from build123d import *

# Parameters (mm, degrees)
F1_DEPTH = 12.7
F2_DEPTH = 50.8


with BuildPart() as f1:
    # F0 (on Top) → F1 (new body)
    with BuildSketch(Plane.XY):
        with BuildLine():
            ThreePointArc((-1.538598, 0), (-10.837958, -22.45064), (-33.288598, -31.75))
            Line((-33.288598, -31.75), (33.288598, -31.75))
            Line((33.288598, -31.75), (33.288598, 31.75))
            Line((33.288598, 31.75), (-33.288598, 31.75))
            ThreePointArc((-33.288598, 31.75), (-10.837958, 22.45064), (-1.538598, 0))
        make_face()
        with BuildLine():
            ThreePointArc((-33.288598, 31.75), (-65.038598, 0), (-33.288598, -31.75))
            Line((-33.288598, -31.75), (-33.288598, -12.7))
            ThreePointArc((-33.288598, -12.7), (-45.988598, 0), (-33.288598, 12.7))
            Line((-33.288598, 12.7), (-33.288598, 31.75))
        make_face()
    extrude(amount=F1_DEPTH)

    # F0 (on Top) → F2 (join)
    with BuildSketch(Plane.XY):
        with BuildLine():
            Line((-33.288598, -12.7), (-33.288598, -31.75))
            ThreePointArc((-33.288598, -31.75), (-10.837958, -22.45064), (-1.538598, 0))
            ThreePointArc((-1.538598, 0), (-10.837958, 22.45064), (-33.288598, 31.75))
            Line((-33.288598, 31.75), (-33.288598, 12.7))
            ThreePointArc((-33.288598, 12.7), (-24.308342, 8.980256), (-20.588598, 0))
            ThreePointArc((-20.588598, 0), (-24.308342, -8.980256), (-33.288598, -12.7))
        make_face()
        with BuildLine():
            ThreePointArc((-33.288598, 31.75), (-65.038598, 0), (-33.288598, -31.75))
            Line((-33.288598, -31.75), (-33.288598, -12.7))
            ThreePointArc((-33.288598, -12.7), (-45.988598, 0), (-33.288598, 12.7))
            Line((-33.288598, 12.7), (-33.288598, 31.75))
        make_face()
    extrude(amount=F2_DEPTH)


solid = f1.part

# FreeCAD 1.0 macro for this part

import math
import FreeCAD as App
import Part
import Sketcher
Q = App.Units.Quantity

doc = App.newDocument("Part")
body = doc.addObject("PartDesign::Body", "Body")
body.AllowCompound = True

# Sketch on XY plane
sketch1 = doc.addObject("Sketcher::SketchObject", "Sketch")
body.addObject(sketch1)
sketch1.AttachmentSupport = (doc.XY_Plane, [""])
sketch1.MapMode = "FlatFace"
sketch1.addGeometry([
    Part.ArcOfCircle(Part.Circle(App.Vector(-33, 0, 0), App.Vector(0, 0, 1), 32), math.radians(-90), math.radians(0)),  # 0
    Part.LineSegment(App.Vector(-33, -32, 0), App.Vector(33, -32, 0)),  # 1
    Part.LineSegment(App.Vector(33, -32, 0), App.Vector(33, 32, 0)),  # 2
    Part.LineSegment(App.Vector(33, 32, 0), App.Vector(-33, 32, 0)),  # 3
    Part.ArcOfCircle(Part.Circle(App.Vector(-33, 0, 0), App.Vector(0, 0, 1), 32), math.radians(0), math.radians(90)),  # 4
    Part.ArcOfCircle(Part.Circle(App.Vector(-33, 0, 0), App.Vector(0, 0, 1), 32), math.radians(90), math.radians(270)),  # 5
    Part.LineSegment(App.Vector(-33, -32, 0), App.Vector(-33, -13, 0)),  # 6
    Part.ArcOfCircle(Part.Circle(App.Vector(-33, 0, 0), App.Vector(0, 0, 1), 13), math.radians(90), math.radians(270)),  # 7
    Part.LineSegment(App.Vector(-33, 13, 0), App.Vector(-33, 32, 0)),  # 8
], False)
sketch1.addConstraint([
    Sketcher.Constraint("Tangent", 0, 1, 1, 1),
    Sketcher.Constraint("Coincident", 1, 2, 2, 1),
    Sketcher.Constraint("Coincident", 2, 2, 3, 1),
    Sketcher.Constraint("Tangent", 3, 2, 4, 2),
    Sketcher.Constraint("Tangent", 4, 1, 0, 2),
    Sketcher.Constraint("Coincident", 5, 2, 6, 1),
    Sketcher.Constraint("Coincident", 6, 2, 7, 2),
    Sketcher.Constraint("Coincident", 7, 1, 8, 1),
    Sketcher.Constraint("Coincident", 8, 2, 5, 1),
    Sketcher.Constraint("Horizontal", 1),
    Sketcher.Constraint("Vertical", 2),
    Sketcher.Constraint("Horizontal", 3),
    Sketcher.Constraint("Vertical", 6),
    Sketcher.Constraint("Vertical", 8),
    Sketcher.Constraint("Coincident", 5, 3, 0, 3),
    Sketcher.Constraint("Coincident", 7, 3, 0, 3),
    Sketcher.Constraint("Coincident", 5, 2, 0, 1),
    Sketcher.Constraint("Coincident", 8, 2, 3, 2),
    Sketcher.Constraint("Symmetric", 0, 1, 2, 2, -1, 1),
    Sketcher.Constraint("PointOnObject", 4, 1, -1),
    Sketcher.Constraint("Radius", 7, Q("0.5 in")),
    Sketcher.Constraint("Radius", 0, Q("1.25 in")),
    Sketcher.Constraint("DistanceX", 0, 3, -1, 1, Q("33.288599 mm")),
])
pad1 = doc.addObject("PartDesign::Pad", "Pad")
body.addObject(pad1)
pad1.Profile = sketch1
pad1.Length = Q("0.5 in")

# Sketch on XY plane
sketch2 = doc.addObject("Sketcher::SketchObject", "Sketch001")
body.addObject(sketch2)
sketch2.AttachmentSupport = (doc.XY_Plane, [""])
sketch2.MapMode = "FlatFace"
sketch2.addGeometry([
    Part.ArcOfCircle(Part.Circle(App.Vector(-33, 0, 0), App.Vector(0, 0, 1), 32), math.radians(-90), math.radians(0)),  # 0
    Part.ArcOfCircle(Part.Circle(App.Vector(-33, 0, 0), App.Vector(0, 0, 1), 32), math.radians(0), math.radians(90)),  # 1
    Part.ArcOfCircle(Part.Circle(App.Vector(-33, 0, 0), App.Vector(0, 0, 1), 32), math.radians(90), math.radians(270)),  # 2
    Part.ArcOfCircle(Part.Circle(App.Vector(-33, 0, 0), App.Vector(0, 0, 1), 13), math.radians(0), math.radians(90)),  # 3
    Part.ArcOfCircle(Part.Circle(App.Vector(-33, 0, 0), App.Vector(0, 0, 1), 13), math.radians(-90), math.radians(0)),  # 4
    Part.ArcOfCircle(Part.Circle(App.Vector(-33, 0, 0), App.Vector(0, 0, 1), 13), math.radians(90), math.radians(270)),  # 5
], False)
sketch2.addConstraint([
    Sketcher.Constraint("Tangent", 0, 2, 1, 1),
    Sketcher.Constraint("Tangent", 1, 2, 2, 1),
    Sketcher.Constraint("Tangent", 2, 2, 0, 1),
    Sketcher.Constraint("Tangent", 3, 1, 4, 2),
    Sketcher.Constraint("Tangent", 4, 1, 5, 2),
    Sketcher.Constraint("Tangent", 5, 1, 3, 2),
    Sketcher.Constraint("Coincident", 3, 3, 0, 3),
    Sketcher.Constraint("Symmetric", 1, 2, 2, 2, -1),
    Sketcher.Constraint("PointOnObject", 0, 2, -1),
    Sketcher.Constraint("PointOnObject", 3, 1, -1),
    Sketcher.Constraint("Vertical", 5, 3, 1, 2),
    Sketcher.Constraint("Vertical", 2, 2, 4, 1),
    Sketcher.Constraint("Vertical", 4, 1, 5, 1),
    Sketcher.Constraint("Radius", 3, Q("0.5 in")),
    Sketcher.Constraint("Radius", 0, Q("1.25 in")),
    Sketcher.Constraint("DistanceX", 0, 3, -1, 1, Q("33.288599 mm")),
])
pad2 = doc.addObject("PartDesign::Pad", "Pad001")
body.addObject(pad2)
pad2.Profile = sketch2
pad2.Length = Q("2 in")

doc.recompute()
